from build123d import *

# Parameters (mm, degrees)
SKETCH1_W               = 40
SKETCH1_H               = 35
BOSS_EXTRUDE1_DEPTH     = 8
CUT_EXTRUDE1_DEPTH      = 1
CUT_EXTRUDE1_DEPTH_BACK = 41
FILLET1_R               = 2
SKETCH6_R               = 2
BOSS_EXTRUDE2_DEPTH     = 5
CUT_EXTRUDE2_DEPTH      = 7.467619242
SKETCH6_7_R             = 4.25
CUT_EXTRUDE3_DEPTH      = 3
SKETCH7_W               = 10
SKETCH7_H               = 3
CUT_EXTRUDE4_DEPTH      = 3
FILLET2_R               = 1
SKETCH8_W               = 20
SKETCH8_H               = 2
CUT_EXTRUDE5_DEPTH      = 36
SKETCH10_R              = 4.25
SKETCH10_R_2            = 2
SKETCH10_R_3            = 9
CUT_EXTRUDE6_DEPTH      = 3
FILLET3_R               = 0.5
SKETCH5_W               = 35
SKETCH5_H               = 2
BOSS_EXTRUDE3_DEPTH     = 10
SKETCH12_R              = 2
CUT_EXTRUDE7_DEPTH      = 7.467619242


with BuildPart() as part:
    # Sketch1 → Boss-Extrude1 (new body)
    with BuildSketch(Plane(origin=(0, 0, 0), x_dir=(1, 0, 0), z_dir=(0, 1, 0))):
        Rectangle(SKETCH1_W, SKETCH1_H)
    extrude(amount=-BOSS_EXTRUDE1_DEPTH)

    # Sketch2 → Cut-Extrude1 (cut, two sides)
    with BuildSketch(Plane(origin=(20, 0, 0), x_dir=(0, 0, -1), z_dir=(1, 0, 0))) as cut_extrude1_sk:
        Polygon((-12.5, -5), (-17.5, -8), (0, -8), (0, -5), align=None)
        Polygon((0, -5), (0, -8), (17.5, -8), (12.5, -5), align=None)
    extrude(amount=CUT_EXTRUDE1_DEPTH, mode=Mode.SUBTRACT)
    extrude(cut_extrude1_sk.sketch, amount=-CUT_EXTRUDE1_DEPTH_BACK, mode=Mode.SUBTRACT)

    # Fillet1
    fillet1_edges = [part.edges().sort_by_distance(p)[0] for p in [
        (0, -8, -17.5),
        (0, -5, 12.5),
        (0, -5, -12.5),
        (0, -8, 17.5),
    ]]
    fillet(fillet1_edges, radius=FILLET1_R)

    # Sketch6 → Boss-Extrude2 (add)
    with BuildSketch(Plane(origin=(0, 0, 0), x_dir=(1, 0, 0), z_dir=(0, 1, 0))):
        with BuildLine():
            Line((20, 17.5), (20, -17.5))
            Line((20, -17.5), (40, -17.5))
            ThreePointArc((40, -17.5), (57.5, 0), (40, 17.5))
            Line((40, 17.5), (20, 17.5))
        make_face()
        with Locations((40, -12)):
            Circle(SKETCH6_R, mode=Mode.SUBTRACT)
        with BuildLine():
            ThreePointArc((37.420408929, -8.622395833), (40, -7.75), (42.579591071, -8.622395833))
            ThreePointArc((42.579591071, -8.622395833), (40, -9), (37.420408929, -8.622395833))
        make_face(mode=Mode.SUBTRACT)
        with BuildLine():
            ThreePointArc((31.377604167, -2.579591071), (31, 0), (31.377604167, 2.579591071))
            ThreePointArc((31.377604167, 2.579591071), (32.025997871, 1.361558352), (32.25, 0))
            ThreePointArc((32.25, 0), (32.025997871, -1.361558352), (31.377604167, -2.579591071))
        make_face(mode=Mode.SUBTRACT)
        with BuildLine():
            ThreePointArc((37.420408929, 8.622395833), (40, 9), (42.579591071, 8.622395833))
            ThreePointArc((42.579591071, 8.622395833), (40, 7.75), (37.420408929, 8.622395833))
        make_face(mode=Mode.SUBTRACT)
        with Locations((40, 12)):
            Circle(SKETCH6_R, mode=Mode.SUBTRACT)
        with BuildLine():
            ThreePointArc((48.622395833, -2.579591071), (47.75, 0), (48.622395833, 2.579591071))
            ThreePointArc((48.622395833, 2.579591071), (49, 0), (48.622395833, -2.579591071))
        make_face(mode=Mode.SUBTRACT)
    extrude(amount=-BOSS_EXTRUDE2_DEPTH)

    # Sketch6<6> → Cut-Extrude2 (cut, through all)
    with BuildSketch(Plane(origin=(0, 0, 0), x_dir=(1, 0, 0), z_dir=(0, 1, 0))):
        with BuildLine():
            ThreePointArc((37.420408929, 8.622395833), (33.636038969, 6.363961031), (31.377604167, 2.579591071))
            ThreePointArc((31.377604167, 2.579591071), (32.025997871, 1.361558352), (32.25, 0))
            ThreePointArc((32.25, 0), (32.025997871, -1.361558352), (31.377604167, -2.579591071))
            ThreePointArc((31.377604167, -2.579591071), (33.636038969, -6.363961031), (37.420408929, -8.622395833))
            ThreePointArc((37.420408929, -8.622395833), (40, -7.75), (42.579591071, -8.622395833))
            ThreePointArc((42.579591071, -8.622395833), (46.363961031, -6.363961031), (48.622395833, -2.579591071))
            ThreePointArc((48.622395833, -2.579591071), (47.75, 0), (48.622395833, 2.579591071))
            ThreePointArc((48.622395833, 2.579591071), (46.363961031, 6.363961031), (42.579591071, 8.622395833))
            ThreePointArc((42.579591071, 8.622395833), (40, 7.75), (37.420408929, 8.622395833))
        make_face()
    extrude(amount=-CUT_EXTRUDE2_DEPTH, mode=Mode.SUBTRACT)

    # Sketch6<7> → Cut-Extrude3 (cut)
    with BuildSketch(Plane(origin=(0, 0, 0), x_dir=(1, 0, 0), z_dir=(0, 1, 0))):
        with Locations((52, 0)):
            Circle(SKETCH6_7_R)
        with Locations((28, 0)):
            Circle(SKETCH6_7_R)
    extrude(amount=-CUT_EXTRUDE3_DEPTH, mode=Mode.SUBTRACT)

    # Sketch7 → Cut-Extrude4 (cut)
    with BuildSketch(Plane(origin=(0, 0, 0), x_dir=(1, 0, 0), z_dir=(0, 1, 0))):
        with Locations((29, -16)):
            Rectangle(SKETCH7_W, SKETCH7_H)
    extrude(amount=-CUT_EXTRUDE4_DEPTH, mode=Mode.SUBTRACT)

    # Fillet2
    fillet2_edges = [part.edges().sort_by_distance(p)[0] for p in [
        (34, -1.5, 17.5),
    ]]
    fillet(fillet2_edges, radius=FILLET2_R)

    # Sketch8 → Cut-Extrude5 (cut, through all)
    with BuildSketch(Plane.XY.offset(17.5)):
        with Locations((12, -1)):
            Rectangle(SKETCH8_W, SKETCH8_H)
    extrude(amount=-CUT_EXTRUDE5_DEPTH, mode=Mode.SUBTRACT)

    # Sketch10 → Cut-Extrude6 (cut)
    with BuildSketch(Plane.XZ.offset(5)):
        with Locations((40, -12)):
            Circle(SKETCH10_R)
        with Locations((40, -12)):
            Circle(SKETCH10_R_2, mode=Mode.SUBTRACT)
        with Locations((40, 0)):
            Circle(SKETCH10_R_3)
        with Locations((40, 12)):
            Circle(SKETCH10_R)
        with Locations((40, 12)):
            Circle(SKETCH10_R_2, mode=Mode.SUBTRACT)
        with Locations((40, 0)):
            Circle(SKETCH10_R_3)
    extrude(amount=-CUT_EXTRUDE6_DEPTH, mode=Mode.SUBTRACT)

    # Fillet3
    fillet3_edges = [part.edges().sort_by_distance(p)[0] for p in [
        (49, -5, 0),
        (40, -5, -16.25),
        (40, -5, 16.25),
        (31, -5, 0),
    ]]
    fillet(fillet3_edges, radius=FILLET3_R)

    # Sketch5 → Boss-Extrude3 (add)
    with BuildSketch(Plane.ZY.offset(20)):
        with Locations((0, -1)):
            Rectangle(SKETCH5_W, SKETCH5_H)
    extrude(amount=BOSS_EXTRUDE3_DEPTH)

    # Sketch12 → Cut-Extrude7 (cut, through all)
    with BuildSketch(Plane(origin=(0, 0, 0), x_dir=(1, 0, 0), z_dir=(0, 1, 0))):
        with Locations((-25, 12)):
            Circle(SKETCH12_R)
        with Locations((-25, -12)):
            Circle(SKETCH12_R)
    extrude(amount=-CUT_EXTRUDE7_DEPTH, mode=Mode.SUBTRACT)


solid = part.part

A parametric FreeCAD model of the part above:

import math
import FreeCAD as App
import Part
import Sketcher
from FreeCAD import Vector
Q = App.Units.Quantity


def edges_at(feature, points):
    """Names of the edges that pass closest to the given points."""
    edges = feature.Shape.Edges
    near = lambda p: min(range(len(edges)), key=lambda i: edges[i].distToShape(Part.Vertex(*p))[0])
    return sorted({f"Edge{near(p) + 1}" for p in points})

doc = App.newDocument("Part")
params = doc.addObject("Spreadsheet::Sheet", "Params")
for row, (alias, value) in enumerate([
    ("sketch1_width", "40 mm"),
    ("sketch1_height", "35 mm"),
    ("pad1_length", "8 mm"),
    ("sketch2_height", "35 mm"),
    ("sketch2_height2", "25 mm"),
    ("fillet_radius", "2 mm"),
    ("sketch3_diameter", "4 mm"),
    ("sketch3_radius", "9 mm"),
    ("sketch3_radius2", "17.5 mm"),
    ("sketch3_width", "20 mm"),
    ("sketch3_radius3", "4.25 mm"),
    ("pad2_length", "5 mm"),
    ("sketch4_radius", "9 mm"),
    ("sketch4_radius2", "4.25 mm"),
    ("sketch5_diameter", "8.5 mm"),
    ("pocket3_length", "3 mm"),
    ("sketch6_width", "10 mm"),
    ("sketch6_height", "3 mm"),
    ("pocket4_length", "3 mm"),
    ("fillet2_radius", "1 mm"),
    ("sketch7_width", "20 mm"),
    ("sketch7_height", "2 mm"),
    ("sketch8_diameter", "4 mm"),
    ("sketch8_radius", "9 mm"),
    ("sketch8_radius2", "4.25 mm"),
    ("pocket6_length", "3 mm"),
    ("fillet3_radius", "0.5 mm"),
    ("sketch9_width", "2 mm"),
    ("sketch9_height", "35 mm"),
    ("pad3_length", "10 mm"),
    ("sketch10_diameter", "4 mm"),
], start=1):
    params.set(f"A{row}", alias)
    params.set(f"B{row}", "=" + value)
    params.setAlias(f"B{row}", alias)

body = doc.addObject("PartDesign::Body", "Body")

# Sketch on XZ plane
sketch1 = body.newObject("Sketcher::SketchObject", "Sketch")
sketch1.AttachmentSupport = (doc.getObject("XZ_Plane"), [""])
sketch1.MapMode = "FlatFace"
sketch1.addGeometry(Part.LineSegment(Vector(-20, -18, 0), Vector(-20, 18, 0)), False)
sketch1.addGeometry(Part.LineSegment(Vector(-20, 18, 0), Vector(20, 18, 0)), False)
sketch1.addGeometry(Part.LineSegment(Vector(20, 18, 0), Vector(20, -18, 0)), False)
sketch1.addGeometry(Part.LineSegment(Vector(20, -18, 0), Vector(-20, -18, 0)), False)
sketch1.addConstraint(Sketcher.Constraint("Coincident", 0, 2, 1, 1))
sketch1.addConstraint(Sketcher.Constraint("Coincident", 1, 2, 2, 1))
sketch1.addConstraint(Sketcher.Constraint("Coincident", 2, 2, 3, 1))
sketch1.addConstraint(Sketcher.Constraint("Coincident", 3, 2, 0, 1))
sketch1.addConstraint(Sketcher.Constraint("Vertical", 0))
sketch1.addConstraint(Sketcher.Constraint("Horizontal", 1))
sketch1.addConstraint(Sketcher.Constraint("Vertical", 2))
sketch1.addConstraint(Sketcher.Constraint("Horizontal", 3))
sketch1.addConstraint(Sketcher.Constraint("Symmetric", 0, 2, 2, 2, -1, 1))
sketch1.addConstraint(Sketcher.Constraint("DistanceX", 1, 1, 1, 2, Q("40 mm")))
sketch1.addConstraint(Sketcher.Constraint("DistanceY", 0, 1, 0, 2, Q("35 mm")))
sketch1.setExpression("Constraints[9]", "Params.sketch1_width")
sketch1.setExpression("Constraints[10]", "Params.sketch1_height")
pad1 = body.newObject("PartDesign::Pad", "Pad")
pad1.Profile = sketch1
pad1.setExpression("Length", "Params.pad1_length")

# Sketch on YZ plane
sketch2 = body.newObject("Sketcher::SketchObject", "Sketch001")
sketch2.AttachmentSupport = (doc.getObject("YZ_Plane"), [""])
sketch2.MapMode = "FlatFace"
sketch2.AttachmentOffset = App.Placement(Vector(0, 0, 20), App.Rotation())
sketch2.addGeometry(Part.LineSegment(Vector(-5, 12, 0), Vector(-8, 18, 0)), False)
sketch2.addGeometry(Part.LineSegment(Vector(-8, 18, 0), Vector(-8, -18, 0)), False)
sketch2.addGeometry(Part.LineSegment(Vector(-8, -18, 0), Vector(-5, -12, 0)), False)
sketch2.addGeometry(Part.LineSegment(Vector(-5, -12, 0), Vector(-5, 12, 0)), False)
sketch2.addConstraint(Sketcher.Constraint("Coincident", 0, 2, 1, 1))
sketch2.addConstraint(Sketcher.Constraint("Coincident", 1, 2, 2, 1))
sketch2.addConstraint(Sketcher.Constraint("Coincident", 2, 2, 3, 1))
sketch2.addConstraint(Sketcher.Constraint("Coincident", 3, 2, 0, 1))
sketch2.addConstraint(Sketcher.Constraint("Vertical", 1))
sketch2.addConstraint(Sketcher.Constraint("Vertical", 3))
sketch2.addConstraint(Sketcher.Constraint("Equal", 0, 2))
sketch2.addConstraint(Sketcher.Constraint("DistanceY", 1, 2, 1, 1, Q("35 mm")))
sketch2.addConstraint(Sketcher.Constraint("DistanceY", 3, 1, 3, 2, Q("25 mm")))
sketch2.addConstraint(Sketcher.Constraint("DistanceX", 0, 2, -1, 1, Q("8 mm")))
sketch2.addConstraint(Sketcher.Constraint("DistanceX", 2, 2, -1, 1, Q("5 mm")))
sketch2.addConstraint(Sketcher.Constraint("DistanceY", -1, 1, 0, 2, Q("17.5 mm")))
sketch2.setExpression("Constraints[7]", "Params.sketch2_height")
sketch2.setExpression("Constraints[8]", "Params.sketch2_height2")
pocket1 = body.newObject("PartDesign::Pocket", "Pocket")
pocket1.Profile = sketch2
pocket1.Type = "ThroughAll"
pocket1.Midplane = True
doc.recompute()

fillet = body.newObject("PartDesign::Fillet", "Fillet")
fillet.Base = (pocket1, edges_at(pocket1, [
    (0, -8, -17.5),
    (0, -5, 12.5),
    (0, -5, -12.5),
    (0, -8, 17.5),
]))
fillet.setExpression("Radius", "Params.fillet_radius")

# Sketch on XZ plane
sketch3 = body.newObject("Sketcher::SketchObject", "Sketch002")
sketch3.AttachmentSupport = (doc.getObject("XZ_Plane"), [""])
sketch3.MapMode = "FlatFace"
sketch3.addGeometry(Part.LineSegment(Vector(20, -17.5, 0), Vector(20, 17.5, 0)), False)
sketch3.addGeometry(Part.LineSegment(Vector(20, 17.5, 0), Vector(40, 17.5, 0)), False)
sketch3.addGeometry(Part.ArcOfCircle(Part.Circle(Vector(40, 0, 0), Vector(0, 0, 1), 17.5), math.radians(-90), math.radians(90)), False)
sketch3.addGeometry(Part.LineSegment(Vector(40, -17.5, 0), Vector(20, -17.5, 0)), False)
sketch3.addGeometry(Part.Circle(Vector(40, 12, 0), Vector(0, 0, 1), 2), False)
sketch3.addGeometry(Part.ArcOfCircle(Part.Circle(Vector(40, 0, 0), Vector(0, 0, 1), 9), math.radians(73), math.radians(107)), False)
sketch3.addGeometry(Part.ArcOfCircle(Part.Circle(Vector(40, 12, 0), Vector(0, 0, 1), 4.3), math.radians(-127), math.radians(-53)), False)
sketch3.addGeometry(Part.ArcOfCircle(Part.Circle(Vector(28, 0, 0), Vector(0, 0, 1), 4.2), math.radians(0), math.radians(37)), False)
sketch3.addGeometry(Part.ArcOfCircle(Part.Circle(Vector(40, 0, 0), Vector(0, 0, 1), 9), math.radians(163), math.radians(197)), False)
sketch3.addGeometry(Part.ArcOfCircle(Part.Circle(Vector(28, 0, 0), Vector(0, 0, 1), 4.2), math.radians(-37), math.radians(0)), False)
sketch3.addGeometry(Part.ArcOfCircle(Part.Circle(Vector(40, 0, 0), Vector(0, 0, 1), 9), math.radians(-17), math.radians(17)), False)
sketch3.addGeometry(Part.ArcOfCircle(Part.Circle(Vector(52, 0, 0), Vector(0, 0, 1), 4.3), math.radians(143), math.radians(217)), False)
sketch3.addGeometry(Part.ArcOfCircle(Part.Circle(Vector(40, -12, 0), Vector(0, 0, 1), 4.3), math.radians(53), math.radians(127)), False)
sketch3.addGeometry(Part.ArcOfCircle(Part.Circle(Vector(40, 0, 0), Vector(0, 0, 1), 9), math.radians(-107), math.radians(-73)), False)
sketch3.addGeometry(Part.Circle(Vector(40, -12, 0), Vector(0, 0, 1), 2), False)
sketch3.addConstraint(Sketcher.Constraint("Coincident", 0, 2, 1, 1))
sketch3.addConstraint(Sketcher.Constraint("Tangent", 1, 2, 2, 2))
sketch3.addConstraint(Sketcher.Constraint("Tangent", 2, 1, 3, 1))
sketch3.addConstraint(Sketcher.Constraint("Coincident", 3, 2, 0, 1))
sketch3.addConstraint(Sketcher.Constraint("Coincident", 5, 1, 6, 2))
sketch3.addConstraint(Sketcher.Constraint("Coincident", 6, 1, 5, 2))
sketch3.addConstraint(Sketcher.Constraint("Coincident", 7, 2, 8, 1))
sketch3.addConstraint(Sketcher.Constraint("Coincident", 8, 2, 9, 1))
sketch3.addConstraint(Sketcher.Constraint("Tangent", 9, 2, 7, 1))
sketch3.addConstraint(Sketcher.Constraint("Coincident", 10, 1, 11, 2))
sketch3.addConstraint(Sketcher.Constraint("Coincident", 11, 1, 10, 2))
sketch3.addConstraint(Sketcher.Constraint("Coincident", 12, 1, 13, 2))
sketch3.addConstraint(Sketcher.Constraint("Coincident", 13, 1, 12, 2))
sketch3.addConstraint(Sketcher.Constraint("Vertical", 0))
sketch3.addConstraint(Sketcher.Constraint("Horizontal", 1))
sketch3.addConstraint(Sketcher.Constraint("Horizontal", 3))
sketch3.addConstraint(Sketcher.Constraint("Coincident", 5, 3, 2, 3))
sketch3.addConstraint(Sketcher.Constraint("Coincident", 6, 3, 4, 3))
sketch3.addConstraint(Sketcher.Constraint("Coincident", 8, 3, 2, 3))
sketch3.addConstraint(Sketcher.Constraint("Coincident", 10, 3, 2, 3))
sketch3.addConstraint(Sketcher.Constraint("Coincident", 13, 3, 2, 3))
sketch3.addConstraint(Sketcher.Constraint("Coincident", 14, 3, 12, 3))
sketch3.addConstraint(Sketcher.Constraint("Equal", 6, 7))
sketch3.addConstraint(Sketcher.Constraint("Equal", 5, 8))
sketch3.addConstraint(Sketcher.Constraint("Equal", 7, 9))
sketch3.addConstraint(Sketcher.Constraint("Equal", 8, 10))
sketch3.addConstraint(Sketcher.Constraint("Equal", 9, 11))
sketch3.addConstraint(Sketcher.Constraint("Equal", 11, 12))
sketch3.addConstraint(Sketcher.Constraint("Equal", 10, 13))
sketch3.addConstraint(Sketcher.Constraint("Equal", 4, 14))
sketch3.addConstraint(Sketcher.Constraint("Symmetric", 4, 3, 12, 3, -1))
sketch3.addConstraint(Sketcher.Constraint("Symmetric", 7, 2, 8, 2, -1))
sketch3.addConstraint(Sketcher.Constraint("PointOnObject", 11, 3, -1))
sketch3.addConstraint(Sketcher.Constraint("PointOnObject", 9, 2, -1))
sketch3.addConstraint(Sketcher.Constraint("Horizontal", 5, 1, 6, 1))
sketch3.addConstraint(Sketcher.Constraint("Horizontal", 8, 2, 10, 1))
sketch3.addConstraint(Sketcher.Constraint("Diameter", 4, Q("4 mm")))
sketch3.addConstraint(Sketcher.Constraint("Radius", 5, Q("9 mm")))
sketch3.addConstraint(Sketcher.Constraint("Radius", 2, Q("17.5 mm")))
sketch3.addConstraint(Sketcher.Constraint("DistanceX", 1, 1, 1, 2, Q("20 mm")))
sketch3.addConstraint(Sketcher.Constraint("Radius", 6, Q("4.25 mm")))
sketch3.addConstraint(Sketcher.Constraint("DistanceX", -1, 1, 2, 3, Q("40 mm")))
sketch3.addConstraint(Sketcher.Constraint("DistanceY", -1, 1, 4, 3, Q("12 mm")))
sketch3.addConstraint(Sketcher.Constraint("DistanceX", -1, 1, 7, 3, Q("28 mm")))
sketch3.setExpression("Constraints[36]", "Params.sketch3_diameter")
sketch3.setExpression("Constraints[37]", "Params.sketch3_radius")
sketch3.setExpression("Constraints[38]", "Params.sketch3_radius2")
sketch3.setExpression("Constraints[39]", "Params.sketch3_width")
sketch3.setExpression("Constraints[40]", "Params.sketch3_radius3")
pad2 = body.newObject("PartDesign::Pad", "Pad001")
pad2.Profile = sketch3
pad2.setExpression("Length", "Params.pad2_length")

# Sketch on XZ plane
sketch4 = body.newObject("Sketcher::SketchObject", "Sketch003")
sketch4.AttachmentSupport = (doc.getObject("XZ_Plane"), [""])
sketch4.MapMode = "FlatFace"
sketch4.addGeometry(Part.ArcOfCircle(Part.Circle(Vector(40, 0, 0), Vector(0, 0, 1), 9), math.radians(-163), math.radians(-107)), False)
sketch4.addGeometry(Part.ArcOfCircle(Part.Circle(Vector(28, 0, 0), Vector(0, 0, 1), 4.2), math.radians(-37), math.radians(0)), False)
sketch4.addGeometry(Part.ArcOfCircle(Part.Circle(Vector(28, 0, 0), Vector(0, 0, 1), 4.2), math.radians(0), math.radians(37)), False)
sketch4.addGeometry(Part.ArcOfCircle(Part.Circle(Vector(40, 0, 0), Vector(0, 0, 1), 9), math.radians(107), math.radians(163)), False)
sketch4.addGeometry(Part.ArcOfCircle(Part.Circle(Vector(40, 12, 0), Vector(0, 0, 1), 4.3), math.radians(-127), math.radians(-53)), False)
sketch4.addGeometry(Part.ArcOfCircle(Part.Circle(Vector(40, 0, 0), Vector(0, 0, 1), 9), math.radians(17), math.radians(73)), False)
sketch4.addGeometry(Part.ArcOfCircle(Part.Circle(Vector(52, 0, 0), Vector(0, 0, 1), 4.3), math.radians(143), math.radians(217)), False)
sketch4.addGeometry(Part.ArcOfCircle(Part.Circle(Vector(40, 0, 0), Vector(0, 0, 1), 9), math.radians(-73), math.radians(-17)), False)
sketch4.addGeometry(Part.ArcOfCircle(Part.Circle(Vector(40, -12, 0), Vector(0, 0, 1), 4.3), math.radians(53), math.radians(127)), False)
sketch4.addConstraint(Sketcher.Constraint("Coincident", 0, 1, 1, 1))
sketch4.addConstraint(Sketcher.Constraint("Tangent", 1, 2, 2, 1))
sketch4.addConstraint(Sketcher.Constraint("Coincident", 2, 2, 3, 2))
sketch4.addConstraint(Sketcher.Constraint("Coincident", 3, 1, 4, 1))
sketch4.addConstraint(Sketcher.Constraint("Coincident", 4, 2, 5, 2))
sketch4.addConstraint(Sketcher.Constraint("Coincident", 5, 1, 6, 1))
sketch4.addConstraint(Sketcher.Constraint("Coincident", 6, 2, 7, 2))
sketch4.addConstraint(Sketcher.Constraint("Coincident", 7, 1, 8, 1))
sketch4.addConstraint(Sketcher.Constraint("Coincident", 8, 2, 0, 2))
sketch4.addConstraint(Sketcher.Constraint("Coincident", 3, 3, 0, 3))
sketch4.addConstraint(Sketcher.Constraint("Coincident", 5, 3, 0, 3))
sketch4.addConstraint(Sketcher.Constraint("Coincident", 7, 3, 0, 3))
sketch4.addConstraint(Sketcher.Constraint("Equal", 1, 2))
sketch4.addConstraint(Sketcher.Constraint("Equal", 0, 3))
sketch4.addConstraint(Sketcher.Constraint("Equal", 2, 4))
sketch4.addConstraint(Sketcher.Constraint("Equal", 3, 5))
sketch4.addConstraint(Sketcher.Constraint("Equal", 4, 6))
sketch4.addConstraint(Sketcher.Constraint("Equal", 5, 7))
sketch4.addConstraint(Sketcher.Constraint("Equal", 6, 8))
sketch4.addConstraint(Sketcher.Constraint("Symmetric", 4, 3, 8, 3, -1))
sketch4.addConstraint(Sketcher.Constraint("Symmetric", 0, 1, 2, 2, -1))
sketch4.addConstraint(Sketcher.Constraint("PointOnObject", 6, 3, -1))
sketch4.addConstraint(Sketcher.Constraint("PointOnObject", 1, 2, -1))
sketch4.addConstraint(Sketcher.Constraint("Horizontal", 3, 1, 4, 2))
sketch4.addConstraint(Sketcher.Constraint("Horizontal", 2, 2, 5, 1))
sketch4.addConstraint(Sketcher.Constraint("Radius", 0, Q("9 mm")))
sketch4.addConstraint(Sketcher.Constraint("Radius", 1, Q("4.25 mm")))
sketch4.addConstraint(Sketcher.Constraint("DistanceX", -1, 1, 0, 3, Q("40 mm")))
sketch4.addConstraint(Sketcher.Constraint("DistanceX", -1, 1, 1, 3, Q("28 mm")))
sketch4.addConstraint(Sketcher.Constraint("DistanceY", -1, 1, 4, 3, Q("12 mm")))
sketch4.setExpression("Constraints[25]", "Params.sketch4_radius")
sketch4.setExpression("Constraints[26]", "Params.sketch4_radius2")
pocket2 = body.newObject("PartDesign::Pocket", "Pocket001")
pocket2.Profile = sketch4
pocket2.Type = "ThroughAll"
pocket2.Reversed = True

# Sketch on XZ plane
sketch5 = body.newObject("Sketcher::SketchObject", "Sketch004")
sketch5.AttachmentSupport = (doc.getObject("XZ_Plane"), [""])
sketch5.MapMode = "FlatFace"
sketch5.addGeometry(Part.Circle(Vector(52, 0, 0), Vector(0, 0, 1), 4.2), False)
sketch5.addGeometry(Part.Circle(Vector(28, 0, 0), Vector(0, 0, 1), 4.2), False)
sketch5.addConstraint(Sketcher.Constraint("Equal", 0, 1))
sketch5.addConstraint(Sketcher.Constraint("PointOnObject", 0, 3, -1))
sketch5.addConstraint(Sketcher.Constraint("PointOnObject", 1, 3, -1))
sketch5.addConstraint(Sketcher.Constraint("Diameter", 0, Q("8.5 mm")))
sketch5.addConstraint(Sketcher.Constraint("DistanceX", -1, 1, 0, 3, Q("52 mm")))
sketch5.addConstraint(Sketcher.Constraint("DistanceX", -1, 1, 1, 3, Q("28 mm")))
sketch5.setExpression("Constraints[3]", "Params.sketch5_diameter")
pocket3 = body.newObject("PartDesign::Pocket", "Pocket002")
pocket3.Profile = sketch5
pocket3.setExpression("Length", "Params.pocket3_length")
pocket3.Reversed = True

# Sketch on XZ plane
sketch6 = body.newObject("Sketcher::SketchObject", "Sketch005")
sketch6.AttachmentSupport = (doc.getObject("XZ_Plane"), [""])
sketch6.MapMode = "FlatFace"
sketch6.addGeometry(Part.LineSegment(Vector(24, 14.5, 0), Vector(24, 17.5, 0)), False)
sketch6.addGeometry(Part.LineSegment(Vector(24, 17.5, 0), Vector(34, 17.5, 0)), False)
sketch6.addGeometry(Part.LineSegment(Vector(34, 17.5, 0), Vector(34, 14.5, 0)), False)
sketch6.addGeometry(Part.LineSegment(Vector(34, 14.5, 0), Vector(24, 14.5, 0)), False)
sketch6.addConstraint(Sketcher.Constraint("Coincident", 0, 2, 1, 1))
sketch6.addConstraint(Sketcher.Constraint("Coincident", 1, 2, 2, 1))
sketch6.addConstraint(Sketcher.Constraint("Coincident", 2, 2, 3, 1))
sketch6.addConstraint(Sketcher.Constraint("Coincident", 3, 2, 0, 1))
sketch6.addConstraint(Sketcher.Constraint("Vertical", 0))
sketch6.addConstraint(Sketcher.Constraint("Horizontal", 1))
sketch6.addConstraint(Sketcher.Constraint("Vertical", 2))
sketch6.addConstraint(Sketcher.Constraint("Horizontal", 3))
sketch6.addConstraint(Sketcher.Constraint("DistanceX", 1, 1, 1, 2, Q("10 mm")))
sketch6.addConstraint(Sketcher.Constraint("DistanceY", 0, 1, 0, 2, Q("3 mm")))
sketch6.addConstraint(Sketcher.Constraint("DistanceX", -1, 1, 0, 2, Q("24 mm")))
sketch6.addConstraint(Sketcher.Constraint("DistanceY", -1, 1, 0, 2, Q("17.5 mm")))
sketch6.setExpression("Constraints[8]", "Params.sketch6_width")
sketch6.setExpression("Constraints[9]", "Params.sketch6_height")
pocket4 = body.newObject("PartDesign::Pocket", "Pocket003")
pocket4.Profile = sketch6
pocket4.setExpression("Length", "Params.pocket4_length")
pocket4.Reversed = True
doc.recompute()

fillet2 = body.newObject("PartDesign::Fillet", "Fillet001")
fillet2.Base = (pocket4, edges_at(pocket4, [(34, -1.5, 17.5)]))
fillet2.setExpression("Radius", "Params.fillet2_radius")

# Sketch on XY plane
sketch7 = body.newObject("Sketcher::SketchObject", "Sketch006")
sketch7.AttachmentSupport = (doc.getObject("XY_Plane"), [""])
sketch7.MapMode = "FlatFace"
sketch7.AttachmentOffset = App.Placement(Vector(0, 0, 17.5), App.Rotation())
sketch7.addGeometry(Part.LineSegment(Vector(2, 0, 0), Vector(2, -2, 0)), False)
sketch7.addGeometry(Part.LineSegment(Vector(2, -2, 0), Vector(22, -2, 0)), False)
sketch7.addGeometry(Part.LineSegment(Vector(22, -2, 0), Vector(22, 0, 0)), False)
sketch7.addGeometry(Part.LineSegment(Vector(22, 0, 0), Vector(2, 0, 0)), False)
sketch7.addConstraint(Sketcher.Constraint("Coincident", 0, 2, 1, 1))
sketch7.addConstraint(Sketcher.Constraint("Coincident", 1, 2, 2, 1))
sketch7.addConstraint(Sketcher.Constraint("Coincident", 2, 2, 3, 1))
sketch7.addConstraint(Sketcher.Constraint("Coincident", 3, 2, 0, 1))
sketch7.addConstraint(Sketcher.Constraint("Vertical", 0))
sketch7.addConstraint(Sketcher.Constraint("Horizontal", 1))
sketch7.addConstraint(Sketcher.Constraint("Vertical", 2))
sketch7.addConstraint(Sketcher.Constraint("Horizontal", 3))
sketch7.addConstraint(Sketcher.Constraint("PointOnObject", 2, 2, -1))
sketch7.addConstraint(Sketcher.Constraint("DistanceX", 1, 1, 1, 2, Q("20 mm")))
sketch7.addConstraint(Sketcher.Constraint("DistanceY", 0, 2, 0, 1, Q("2 mm")))
sketch7.addConstraint(Sketcher.Constraint("DistanceX", -1, 1, 0, 2, Q("2 mm")))
sketch7.setExpression("Constraints[9]", "Params.sketch7_width")
sketch7.setExpression("Constraints[10]", "Params.sketch7_height")
pocket5 = body.newObject("PartDesign::Pocket", "Pocket004")
pocket5.Profile = sketch7
pocket5.Type = "ThroughAll"

# Sketch on XZ plane
sketch8 = body.newObject("Sketcher::SketchObject", "Sketch007")
sketch8.AttachmentSupport = (doc.getObject("XZ_Plane"), [""])
sketch8.MapMode = "FlatFace"
sketch8.AttachmentOffset = App.Placement(Vector(0, 0, 5), App.Rotation())
sketch8.addGeometry(Part.ArcOfCircle(Part.Circle(Vector(40, 12, 0), Vector(0, 0, 1), 4.2), math.radians(-53), math.radians(233)), False)
sketch8.addGeometry(Part.ArcOfCircle(Part.Circle(Vector(40, 0, 0), Vector(0, 0, 1), 9), math.radians(107), math.radians(253)), False)
sketch8.addGeometry(Part.ArcOfCircle(Part.Circle(Vector(40, -12, 0), Vector(0, 0, 1), 4.2), math.radians(127), math.radians(413)), False)
sketch8.addGeometry(Part.ArcOfCircle(Part.Circle(Vector(40, 0, 0), Vector(0, 0, 1), 9), math.radians(-73), math.radians(73)), False)
sketch8.addGeometry(Part.Circle(Vector(40, 12, 0), Vector(0, 0, 1), 2), False)
sketch8.addGeometry(Part.Circle(Vector(40, -12, 0), Vector(0, 0, 1), 2), False)
sketch8.addConstraint(Sketcher.Constraint("Coincident", 0, 2, 1, 1))
sketch8.addConstraint(Sketcher.Constraint("Coincident", 1, 2, 2, 1))
sketch8.addConstraint(Sketcher.Constraint("Coincident", 2, 2, 3, 1))
sketch8.addConstraint(Sketcher.Constraint("Coincident", 3, 2, 0, 1))
sketch8.addConstraint(Sketcher.Constraint("Coincident", 3, 3, 1, 3))
sketch8.addConstraint(Sketcher.Constraint("Coincident", 4, 3, 0, 3))
sketch8.addConstraint(Sketcher.Constraint("Coincident", 5, 3, 2, 3))
sketch8.addConstraint(Sketcher.Constraint("Equal", 0, 2))
sketch8.addConstraint(Sketcher.Constraint("Equal", 1, 3))
sketch8.addConstraint(Sketcher.Constraint("Equal", 4, 5))
sketch8.addConstraint(Sketcher.Constraint("Symmetric", 0, 3, 2, 3, -1))
sketch8.addConstraint(Sketcher.Constraint("PointOnObject", 1, 3, -1))
sketch8.addConstraint(Sketcher.Constraint("Horizontal", 1, 2, 2, 2))
sketch8.addConstraint(Sketcher.Constraint("Diameter", 4, Q("4 mm")))
sketch8.addConstraint(Sketcher.Constraint("Radius", 1, Q("9 mm")))
sketch8.addConstraint(Sketcher.Constraint("Radius", 0, Q("4.25 mm")))
sketch8.addConstraint(Sketcher.Constraint("DistanceX", -1, 1, 0, 3, Q("40 mm")))
sketch8.addConstraint(Sketcher.Constraint("DistanceY", -1, 1, 0, 3, Q("12 mm")))
sketch8.setExpression("Constraints[13]", "Params.sketch8_diameter")
sketch8.setExpression("Constraints[14]", "Params.sketch8_radius")
sketch8.setExpression("Constraints[15]", "Params.sketch8_radius2")
pocket6 = body.newObject("PartDesign::Pocket", "Pocket005")
pocket6.Profile = sketch8
pocket6.setExpression("Length", "Params.pocket6_length")
doc.recompute()

fillet3 = body.newObject("PartDesign::Fillet", "Fillet002")
fillet3.Base = (pocket6, edges_at(pocket6, [
    (49, -5, 0),
    (40, -5, -16.25),
    (40, -5, 16.25),
    (31, -5, 0),
]))
fillet3.setExpression("Radius", "Params.fillet3_radius")

# Sketch on YZ plane
sketch9 = body.newObject("Sketcher::SketchObject", "Sketch008")
sketch9.AttachmentSupport = (doc.getObject("YZ_Plane"), [""])
sketch9.MapMode = "FlatFace"
sketch9.AttachmentOffset = App.Placement(Vector(0, 0, -20), App.Rotation())
sketch9.addGeometry(Part.LineSegment(Vector(0, -17.5, 0), Vector(-2, -17.5, 0)), False)
sketch9.addGeometry(Part.LineSegment(Vector(-2, -17.5, 0), Vector(-2, 17.5, 0)), False)
sketch9.addGeometry(Part.LineSegment(Vector(-2, 17.5, 0), Vector(0, 17.5, 0)), False)
sketch9.addGeometry(Part.LineSegment(Vector(0, 17.5, 0), Vector(0, -17.5, 0)), False)
sketch9.addConstraint(Sketcher.Constraint("Coincident", 0, 2, 1, 1))
sketch9.addConstraint(Sketcher.Constraint("Coincident", 1, 2, 2, 1))
sketch9.addConstraint(Sketcher.Constraint("Coincident", 2, 2, 3, 1))
sketch9.addConstraint(Sketcher.Constraint("Coincident", 3, 2, 0, 1))
sketch9.addConstraint(Sketcher.Constraint("Horizontal", 0))
sketch9.addConstraint(Sketcher.Constraint("Vertical", 1))
sketch9.addConstraint(Sketcher.Constraint("Horizontal", 2))
sketch9.addConstraint(Sketcher.Constraint("Vertical", 3))
sketch9.addConstraint(Sketcher.Constraint("Symmetric", 2, 2, 3, 2, -1, 1))
sketch9.addConstraint(Sketcher.Constraint("DistanceX", 0, 2, 0, 1, Q("2 mm")))
sketch9.addConstraint(Sketcher.Constraint("DistanceY", 1, 1, 1, 2, Q("35 mm")))
sketch9.setExpression("Constraints[9]", "Params.sketch9_width")
sketch9.setExpression("Constraints[10]", "Params.sketch9_height")
pad3 = body.newObject("PartDesign::Pad", "Pad002")
pad3.Profile = sketch9
pad3.setExpression("Length", "Params.pad3_length")
pad3.Reversed = True

# Sketch on XZ plane
sketch10 = body.newObject("Sketcher::SketchObject", "Sketch009")
sketch10.AttachmentSupport = (doc.getObject("XZ_Plane"), [""])
sketch10.MapMode = "FlatFace"
sketch10.addGeometry(Part.Circle(Vector(-25, -12, 0), Vector(0, 0, 1), 2), False)
sketch10.addGeometry(Part.Circle(Vector(-25, 12, 0), Vector(0, 0, 1), 2), False)
sketch10.addConstraint(Sketcher.Constraint("Equal", 0, 1))
sketch10.addConstraint(Sketcher.Constraint("Symmetric", 0, 3, 1, 3, -1))
sketch10.addConstraint(Sketcher.Constraint("Diameter", 0, Q("4 mm")))
sketch10.addConstraint(Sketcher.Constraint("DistanceX", 0, 3, -1, 1, Q("25 mm")))
sketch10.addConstraint(Sketcher.Constraint("DistanceY", 0, 3, -1, 1, Q("12 mm")))
sketch10.setExpression("Constraints[2]", "Params.sketch10_diameter")
pocket7 = body.newObject("PartDesign::Pocket", "Pocket006")
pocket7.Profile = sketch10
pocket7.Type = "ThroughAll"
pocket7.Reversed = True

doc.recompute()
